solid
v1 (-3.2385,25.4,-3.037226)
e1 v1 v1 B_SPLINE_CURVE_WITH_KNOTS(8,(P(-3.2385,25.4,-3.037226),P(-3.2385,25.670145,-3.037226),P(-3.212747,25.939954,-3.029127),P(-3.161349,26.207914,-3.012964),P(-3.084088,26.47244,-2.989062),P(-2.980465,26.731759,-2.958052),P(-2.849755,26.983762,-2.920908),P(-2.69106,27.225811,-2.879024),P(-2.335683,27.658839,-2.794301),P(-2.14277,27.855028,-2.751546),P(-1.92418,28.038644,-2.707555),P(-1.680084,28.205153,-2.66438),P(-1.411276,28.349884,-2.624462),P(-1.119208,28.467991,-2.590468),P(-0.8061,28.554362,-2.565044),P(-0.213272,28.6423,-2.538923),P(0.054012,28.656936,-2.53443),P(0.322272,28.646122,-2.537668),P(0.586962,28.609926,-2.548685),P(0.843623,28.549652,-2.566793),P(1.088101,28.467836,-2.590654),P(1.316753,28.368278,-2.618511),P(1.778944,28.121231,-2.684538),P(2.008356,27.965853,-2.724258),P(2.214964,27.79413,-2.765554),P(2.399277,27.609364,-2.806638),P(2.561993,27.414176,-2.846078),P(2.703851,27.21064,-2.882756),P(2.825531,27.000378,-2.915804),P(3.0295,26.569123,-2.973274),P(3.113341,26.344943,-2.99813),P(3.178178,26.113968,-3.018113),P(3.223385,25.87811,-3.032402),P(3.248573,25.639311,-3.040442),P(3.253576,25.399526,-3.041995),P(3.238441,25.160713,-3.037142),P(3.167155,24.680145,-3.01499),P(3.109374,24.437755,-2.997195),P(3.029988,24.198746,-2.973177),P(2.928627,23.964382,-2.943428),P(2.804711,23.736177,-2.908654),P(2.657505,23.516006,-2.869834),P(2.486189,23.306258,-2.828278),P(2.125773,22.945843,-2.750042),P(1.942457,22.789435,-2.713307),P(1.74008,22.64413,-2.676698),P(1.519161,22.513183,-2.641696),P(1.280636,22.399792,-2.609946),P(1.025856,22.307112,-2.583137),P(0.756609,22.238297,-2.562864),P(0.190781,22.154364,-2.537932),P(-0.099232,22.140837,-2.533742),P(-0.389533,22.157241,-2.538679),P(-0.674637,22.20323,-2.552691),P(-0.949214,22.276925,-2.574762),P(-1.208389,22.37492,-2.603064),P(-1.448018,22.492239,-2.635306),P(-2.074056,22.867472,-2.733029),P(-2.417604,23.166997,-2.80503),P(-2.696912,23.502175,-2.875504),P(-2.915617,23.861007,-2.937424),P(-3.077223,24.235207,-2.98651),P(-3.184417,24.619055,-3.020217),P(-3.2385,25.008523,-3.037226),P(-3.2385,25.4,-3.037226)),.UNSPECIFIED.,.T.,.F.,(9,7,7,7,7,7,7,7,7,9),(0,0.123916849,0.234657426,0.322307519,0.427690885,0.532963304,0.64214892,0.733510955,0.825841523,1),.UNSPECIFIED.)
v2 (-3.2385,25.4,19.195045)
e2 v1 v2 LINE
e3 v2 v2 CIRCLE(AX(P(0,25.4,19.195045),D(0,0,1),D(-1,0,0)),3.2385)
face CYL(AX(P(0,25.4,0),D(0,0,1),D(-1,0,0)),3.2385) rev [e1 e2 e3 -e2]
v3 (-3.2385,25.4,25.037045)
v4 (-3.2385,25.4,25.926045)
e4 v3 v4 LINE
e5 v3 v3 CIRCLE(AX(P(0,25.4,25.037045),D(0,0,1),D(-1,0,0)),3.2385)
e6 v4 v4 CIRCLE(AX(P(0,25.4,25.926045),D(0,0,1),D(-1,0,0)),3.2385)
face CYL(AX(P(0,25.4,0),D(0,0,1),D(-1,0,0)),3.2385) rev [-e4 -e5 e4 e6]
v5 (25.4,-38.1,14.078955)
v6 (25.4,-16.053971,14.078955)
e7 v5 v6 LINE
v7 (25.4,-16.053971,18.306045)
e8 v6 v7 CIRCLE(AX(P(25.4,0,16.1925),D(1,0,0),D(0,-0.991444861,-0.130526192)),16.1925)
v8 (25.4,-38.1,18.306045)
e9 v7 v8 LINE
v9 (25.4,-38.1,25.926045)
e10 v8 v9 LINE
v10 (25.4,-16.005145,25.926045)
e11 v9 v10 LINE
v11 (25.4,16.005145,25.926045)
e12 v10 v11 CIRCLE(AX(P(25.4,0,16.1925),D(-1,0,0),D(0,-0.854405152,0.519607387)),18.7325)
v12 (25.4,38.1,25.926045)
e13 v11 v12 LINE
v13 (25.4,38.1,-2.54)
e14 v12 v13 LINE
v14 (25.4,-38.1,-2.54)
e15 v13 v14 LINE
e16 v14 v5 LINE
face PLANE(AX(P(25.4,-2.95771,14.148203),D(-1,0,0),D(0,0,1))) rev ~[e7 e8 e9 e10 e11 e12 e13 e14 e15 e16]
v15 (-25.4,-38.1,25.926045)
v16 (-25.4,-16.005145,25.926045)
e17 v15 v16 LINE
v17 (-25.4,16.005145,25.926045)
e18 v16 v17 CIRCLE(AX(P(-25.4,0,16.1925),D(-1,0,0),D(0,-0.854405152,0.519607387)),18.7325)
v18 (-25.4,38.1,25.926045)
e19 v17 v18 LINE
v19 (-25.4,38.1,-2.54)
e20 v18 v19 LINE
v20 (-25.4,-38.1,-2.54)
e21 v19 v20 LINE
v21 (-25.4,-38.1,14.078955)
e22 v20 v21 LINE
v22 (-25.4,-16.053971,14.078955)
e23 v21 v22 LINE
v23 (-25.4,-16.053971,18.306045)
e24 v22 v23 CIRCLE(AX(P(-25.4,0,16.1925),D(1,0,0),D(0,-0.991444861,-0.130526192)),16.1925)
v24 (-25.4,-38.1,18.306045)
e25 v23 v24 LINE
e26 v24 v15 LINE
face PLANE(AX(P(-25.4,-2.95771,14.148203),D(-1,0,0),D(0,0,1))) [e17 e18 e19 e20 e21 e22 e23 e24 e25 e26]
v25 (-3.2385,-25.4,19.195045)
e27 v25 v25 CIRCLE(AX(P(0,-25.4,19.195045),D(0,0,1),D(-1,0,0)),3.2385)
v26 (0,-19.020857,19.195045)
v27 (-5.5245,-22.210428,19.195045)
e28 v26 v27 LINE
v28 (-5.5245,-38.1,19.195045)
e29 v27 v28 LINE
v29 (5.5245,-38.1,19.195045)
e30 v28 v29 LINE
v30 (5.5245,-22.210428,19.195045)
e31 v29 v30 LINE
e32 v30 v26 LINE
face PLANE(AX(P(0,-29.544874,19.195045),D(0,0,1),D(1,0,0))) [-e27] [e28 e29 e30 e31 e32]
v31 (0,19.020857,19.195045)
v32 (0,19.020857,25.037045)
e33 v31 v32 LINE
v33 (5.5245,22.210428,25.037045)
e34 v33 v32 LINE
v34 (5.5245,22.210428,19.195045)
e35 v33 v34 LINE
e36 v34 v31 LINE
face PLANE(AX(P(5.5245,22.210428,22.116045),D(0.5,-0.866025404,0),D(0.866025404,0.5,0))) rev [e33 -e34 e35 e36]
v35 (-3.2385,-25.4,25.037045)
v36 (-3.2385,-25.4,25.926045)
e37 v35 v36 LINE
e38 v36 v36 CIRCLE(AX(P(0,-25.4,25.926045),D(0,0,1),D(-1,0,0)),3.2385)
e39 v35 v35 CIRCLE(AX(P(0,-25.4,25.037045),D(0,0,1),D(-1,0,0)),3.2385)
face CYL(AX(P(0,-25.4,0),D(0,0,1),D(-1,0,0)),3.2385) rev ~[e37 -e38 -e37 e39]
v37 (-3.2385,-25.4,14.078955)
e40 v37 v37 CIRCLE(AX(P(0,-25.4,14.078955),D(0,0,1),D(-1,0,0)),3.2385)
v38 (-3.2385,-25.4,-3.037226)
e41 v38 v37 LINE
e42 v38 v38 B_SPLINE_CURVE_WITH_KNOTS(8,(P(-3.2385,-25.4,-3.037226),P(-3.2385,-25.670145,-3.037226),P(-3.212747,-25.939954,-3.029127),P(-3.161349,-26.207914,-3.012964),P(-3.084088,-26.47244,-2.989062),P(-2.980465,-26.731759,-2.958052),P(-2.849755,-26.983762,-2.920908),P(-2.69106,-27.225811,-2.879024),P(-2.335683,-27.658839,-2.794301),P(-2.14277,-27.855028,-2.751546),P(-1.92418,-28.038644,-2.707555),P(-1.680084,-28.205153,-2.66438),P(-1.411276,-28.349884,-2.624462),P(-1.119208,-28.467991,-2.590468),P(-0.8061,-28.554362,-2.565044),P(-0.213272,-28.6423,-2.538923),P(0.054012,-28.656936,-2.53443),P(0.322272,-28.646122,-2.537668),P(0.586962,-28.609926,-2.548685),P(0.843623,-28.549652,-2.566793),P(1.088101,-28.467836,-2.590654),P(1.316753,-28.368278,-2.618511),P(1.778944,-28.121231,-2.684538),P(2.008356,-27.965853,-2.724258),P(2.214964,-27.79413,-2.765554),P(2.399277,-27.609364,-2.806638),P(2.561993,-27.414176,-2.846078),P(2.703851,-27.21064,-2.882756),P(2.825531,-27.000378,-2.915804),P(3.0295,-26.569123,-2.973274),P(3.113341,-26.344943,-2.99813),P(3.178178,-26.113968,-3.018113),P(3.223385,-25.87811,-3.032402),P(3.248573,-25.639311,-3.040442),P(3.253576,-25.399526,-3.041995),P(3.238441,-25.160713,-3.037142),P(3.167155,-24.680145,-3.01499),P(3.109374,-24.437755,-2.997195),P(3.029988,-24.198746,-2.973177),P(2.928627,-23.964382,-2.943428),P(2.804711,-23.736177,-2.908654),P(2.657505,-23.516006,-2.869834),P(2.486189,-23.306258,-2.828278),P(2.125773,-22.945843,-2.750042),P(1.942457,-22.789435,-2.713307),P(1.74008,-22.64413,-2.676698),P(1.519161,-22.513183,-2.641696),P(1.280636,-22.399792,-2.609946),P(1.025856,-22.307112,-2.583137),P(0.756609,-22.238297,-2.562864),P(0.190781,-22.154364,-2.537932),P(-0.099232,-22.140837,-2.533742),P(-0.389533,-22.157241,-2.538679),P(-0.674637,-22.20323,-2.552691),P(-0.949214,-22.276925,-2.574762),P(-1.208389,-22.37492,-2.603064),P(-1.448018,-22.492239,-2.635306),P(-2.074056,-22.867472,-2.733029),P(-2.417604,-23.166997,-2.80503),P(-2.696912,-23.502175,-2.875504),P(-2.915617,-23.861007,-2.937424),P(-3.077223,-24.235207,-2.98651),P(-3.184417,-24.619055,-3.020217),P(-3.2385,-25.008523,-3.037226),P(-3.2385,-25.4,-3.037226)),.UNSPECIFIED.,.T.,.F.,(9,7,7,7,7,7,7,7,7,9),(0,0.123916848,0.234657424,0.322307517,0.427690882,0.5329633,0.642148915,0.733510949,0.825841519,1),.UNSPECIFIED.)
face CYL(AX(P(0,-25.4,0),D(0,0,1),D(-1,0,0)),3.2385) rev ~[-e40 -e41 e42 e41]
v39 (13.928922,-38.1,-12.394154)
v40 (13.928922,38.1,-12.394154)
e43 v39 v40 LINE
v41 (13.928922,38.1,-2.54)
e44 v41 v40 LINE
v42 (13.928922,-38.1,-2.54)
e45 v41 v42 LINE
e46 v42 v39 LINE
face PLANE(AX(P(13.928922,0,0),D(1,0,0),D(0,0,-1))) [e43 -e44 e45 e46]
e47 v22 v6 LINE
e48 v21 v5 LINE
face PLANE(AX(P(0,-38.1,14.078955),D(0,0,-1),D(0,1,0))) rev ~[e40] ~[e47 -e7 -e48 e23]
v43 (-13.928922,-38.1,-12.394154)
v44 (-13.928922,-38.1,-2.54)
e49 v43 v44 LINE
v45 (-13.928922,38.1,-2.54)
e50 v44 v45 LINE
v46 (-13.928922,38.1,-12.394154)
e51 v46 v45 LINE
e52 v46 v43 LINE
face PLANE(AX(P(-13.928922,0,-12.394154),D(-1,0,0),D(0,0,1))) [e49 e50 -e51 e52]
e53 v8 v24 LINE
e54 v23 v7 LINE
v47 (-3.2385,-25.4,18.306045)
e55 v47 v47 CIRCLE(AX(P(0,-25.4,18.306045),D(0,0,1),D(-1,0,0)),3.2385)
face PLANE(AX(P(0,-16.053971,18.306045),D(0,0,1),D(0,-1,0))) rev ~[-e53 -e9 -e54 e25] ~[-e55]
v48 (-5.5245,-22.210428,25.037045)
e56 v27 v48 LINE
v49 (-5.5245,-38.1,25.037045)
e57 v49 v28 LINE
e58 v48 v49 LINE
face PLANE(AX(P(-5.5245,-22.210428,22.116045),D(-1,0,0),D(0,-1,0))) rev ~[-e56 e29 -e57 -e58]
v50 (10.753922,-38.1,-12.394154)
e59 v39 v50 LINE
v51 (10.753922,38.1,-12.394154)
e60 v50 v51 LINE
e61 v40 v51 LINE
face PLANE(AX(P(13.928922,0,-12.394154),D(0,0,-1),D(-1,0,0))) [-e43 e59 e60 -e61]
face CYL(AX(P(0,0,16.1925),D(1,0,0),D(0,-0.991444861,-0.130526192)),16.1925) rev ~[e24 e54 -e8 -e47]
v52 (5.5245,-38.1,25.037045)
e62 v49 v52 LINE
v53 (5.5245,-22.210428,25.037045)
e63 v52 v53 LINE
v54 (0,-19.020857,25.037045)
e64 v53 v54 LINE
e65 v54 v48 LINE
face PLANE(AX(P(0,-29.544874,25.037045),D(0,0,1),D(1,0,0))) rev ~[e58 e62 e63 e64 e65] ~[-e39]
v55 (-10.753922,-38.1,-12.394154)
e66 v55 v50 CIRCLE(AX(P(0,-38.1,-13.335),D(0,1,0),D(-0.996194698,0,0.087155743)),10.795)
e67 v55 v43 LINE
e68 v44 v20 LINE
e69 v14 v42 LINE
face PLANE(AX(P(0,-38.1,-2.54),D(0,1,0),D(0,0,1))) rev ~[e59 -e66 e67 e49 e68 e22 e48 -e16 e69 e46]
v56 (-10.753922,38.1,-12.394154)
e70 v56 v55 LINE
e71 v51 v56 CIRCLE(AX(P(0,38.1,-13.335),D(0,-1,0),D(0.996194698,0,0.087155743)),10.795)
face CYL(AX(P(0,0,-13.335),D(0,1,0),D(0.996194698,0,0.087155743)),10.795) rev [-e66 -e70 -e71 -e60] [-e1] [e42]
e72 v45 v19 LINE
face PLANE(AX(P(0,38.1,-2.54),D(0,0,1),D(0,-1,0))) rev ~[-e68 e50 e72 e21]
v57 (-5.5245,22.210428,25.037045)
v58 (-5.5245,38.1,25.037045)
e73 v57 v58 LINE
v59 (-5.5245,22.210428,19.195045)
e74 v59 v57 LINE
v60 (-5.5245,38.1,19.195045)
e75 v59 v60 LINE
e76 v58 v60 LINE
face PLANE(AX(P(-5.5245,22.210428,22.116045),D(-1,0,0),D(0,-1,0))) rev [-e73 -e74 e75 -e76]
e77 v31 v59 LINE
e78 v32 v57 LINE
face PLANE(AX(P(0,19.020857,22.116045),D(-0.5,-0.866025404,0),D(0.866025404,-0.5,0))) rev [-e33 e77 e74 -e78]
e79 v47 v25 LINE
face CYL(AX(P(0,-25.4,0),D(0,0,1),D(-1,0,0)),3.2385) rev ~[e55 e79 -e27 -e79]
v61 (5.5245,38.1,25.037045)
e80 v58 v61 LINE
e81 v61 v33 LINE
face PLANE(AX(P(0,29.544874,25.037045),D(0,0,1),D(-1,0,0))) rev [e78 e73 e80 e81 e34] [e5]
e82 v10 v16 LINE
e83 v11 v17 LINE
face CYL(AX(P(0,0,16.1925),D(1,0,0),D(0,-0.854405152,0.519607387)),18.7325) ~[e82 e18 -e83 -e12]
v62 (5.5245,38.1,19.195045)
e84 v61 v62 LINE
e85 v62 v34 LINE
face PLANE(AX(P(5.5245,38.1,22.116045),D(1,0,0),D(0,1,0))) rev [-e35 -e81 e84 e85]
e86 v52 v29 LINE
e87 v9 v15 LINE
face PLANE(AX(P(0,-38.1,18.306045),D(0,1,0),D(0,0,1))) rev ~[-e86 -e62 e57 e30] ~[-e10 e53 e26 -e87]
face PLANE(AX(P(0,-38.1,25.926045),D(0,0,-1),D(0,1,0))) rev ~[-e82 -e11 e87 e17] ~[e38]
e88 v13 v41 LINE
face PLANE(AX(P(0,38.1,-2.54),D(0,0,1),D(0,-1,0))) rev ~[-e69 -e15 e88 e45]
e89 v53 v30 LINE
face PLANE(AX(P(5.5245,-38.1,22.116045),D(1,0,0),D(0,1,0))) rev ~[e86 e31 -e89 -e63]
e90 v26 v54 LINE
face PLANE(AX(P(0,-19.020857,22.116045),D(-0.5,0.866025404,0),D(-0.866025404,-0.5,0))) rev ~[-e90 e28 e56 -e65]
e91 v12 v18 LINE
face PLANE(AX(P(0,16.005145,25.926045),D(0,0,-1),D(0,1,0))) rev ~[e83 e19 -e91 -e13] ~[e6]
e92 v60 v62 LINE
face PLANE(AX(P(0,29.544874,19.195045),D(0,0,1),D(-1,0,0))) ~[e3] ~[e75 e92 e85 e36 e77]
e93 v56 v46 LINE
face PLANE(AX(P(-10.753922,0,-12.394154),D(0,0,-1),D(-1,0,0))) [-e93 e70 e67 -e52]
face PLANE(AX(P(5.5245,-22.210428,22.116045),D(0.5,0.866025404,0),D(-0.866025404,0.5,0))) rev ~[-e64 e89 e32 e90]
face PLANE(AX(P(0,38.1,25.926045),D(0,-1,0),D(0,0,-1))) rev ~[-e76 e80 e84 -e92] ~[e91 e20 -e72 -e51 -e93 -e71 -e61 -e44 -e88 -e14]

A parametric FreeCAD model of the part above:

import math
import FreeCAD as App
import Part
import Sketcher

V = App.Vector
Q = App.Units.Quantity


def add_polygon(sketch, points):
    """Adds a closed chain of lines whose ends are joined by coincident constraints."""
    first, n = sketch.GeometryCount, len(points)
    for a, b in zip(points, points[1:] + points[:1]):
        sketch.addGeometry(Part.LineSegment(App.Vector(*a, 0), App.Vector(*b, 0)), False)
    for i in range(n):
        sketch.addConstraint(Sketcher.Constraint("Coincident", first + i, 2, first + (i + 1) % n, 1))

doc = App.newDocument("Part")
body = doc.addObject("PartDesign::Body", "Body")

# Sketch on XZ plane
sketch1 = doc.addObject("Sketcher::SketchObject", "Sketch")
body.addObject(sketch1)
sketch1.AttachmentSupport = (doc.XZ_Plane, [""])
sketch1.MapMode = "FlatFace"
sketch1.addGeometry([
    Part.LineSegment(V(-13.9, 0, 0), V(13.9, 0, 0)),  # 0
    Part.LineSegment(V(13.9, 0, 0), V(13.9, -12.4, 0)),  # 1
    Part.LineSegment(V(13.9, -12.4, 0), V(10.8, -12.4, 0)),  # 2
    Part.ArcOfCircle(Part.Circle(V(0, -13.3, 0), V(0, 0, 1), 10.8), math.radians(5), math.radians(175)),  # 3
    Part.LineSegment(V(-10.8, -12.4, 0), V(-13.9, -12.4, 0)),  # 4
    Part.LineSegment(V(-13.9, -12.4, 0), V(-13.9, 0, 0)),  # 5
], False)
sketch1.addConstraint([
    Sketcher.Constraint("Coincident", 0, 2, 1, 1),
    Sketcher.Constraint("Coincident", 1, 2, 2, 1),
    Sketcher.Constraint("Coincident", 2, 2, 3, 1),
    Sketcher.Constraint("Coincident", 3, 2, 4, 1),
    Sketcher.Constraint("Coincident", 4, 2, 5, 1),
    Sketcher.Constraint("Coincident", 5, 2, 0, 1),
    Sketcher.Constraint("Horizontal", 0),
    Sketcher.Constraint("Vertical", 1),
    Sketcher.Constraint("Horizontal", 2),
    Sketcher.Constraint("Horizontal", 4),
    Sketcher.Constraint("Vertical", 5),
    Sketcher.Constraint("Symmetric", 0, 2, 5, 2, -1, 1),
    Sketcher.Constraint("Symmetric", 2, 2, 3, 2, -2),
    Sketcher.Constraint("Radius", 3, Q("0.425 in")),
    Sketcher.Constraint("DistanceX", 2, 2, 2, 1, Q("0.125 in")),
    Sketcher.Constraint("DistanceY", 3, 3, -1, 1, Q("0.525 in")),
    Sketcher.Constraint("DistanceX", 0, 1, 0, 2, 27.857844),
])
pad1 = doc.addObject("PartDesign::Pad", "Pad")
body.addObject(pad1)
pad1.Profile = sketch1
pad1.Length = Q("3 in")
pad1.Midplane = True

# Sketch on YZ plane
sketch2 = doc.addObject("Sketcher::SketchObject", "Sketch001")
body.addObject(sketch2)
sketch2.AttachmentSupport = (doc.YZ_Plane, [""])
sketch2.MapMode = "FlatFace"
sketch2.addGeometry([
    Part.LineSegment(V(-38.1, 18.3, 0), V(-16.1, 18.3, 0)),  # 0
    Part.ArcOfCircle(Part.Circle(V(0, 16.2, 0), V(0, 0, 1), 16.2), math.radians(-172), math.radians(172)),  # 1
    Part.LineSegment(V(-16.1, 14.1, 0), V(-38.1, 14.1, 0)),  # 2
    Part.LineSegment(V(-38.1, 14.1, 0), V(-38.1, -2.5, 0)),  # 3
    Part.LineSegment(V(-38.1, -2.5, 0), V(38.1, -2.5, 0)),  # 4
    Part.LineSegment(V(38.1, -2.5, 0), V(38.1, 25.9, 0)),  # 5
    Part.LineSegment(V(38.1, 25.9, 0), V(16, 25.9, 0)),  # 6
    Part.ArcOfCircle(Part.Circle(V(0, 16.2, 0), V(0, 0, 1), 18.7), math.radians(31), math.radians(149)),  # 7
    Part.LineSegment(V(-16, 25.9, 0), V(-38.1, 25.9, 0)),  # 8
    Part.LineSegment(V(-38.1, 25.9, 0), V(-38.1, 18.3, 0)),  # 9
], False)
sketch2.addConstraint([
    Sketcher.Constraint("Coincident", 0, 2, 1, 2),
    Sketcher.Constraint("Coincident", 1, 1, 2, 1),
    Sketcher.Constraint("Coincident", 2, 2, 3, 1),
    Sketcher.Constraint("Coincident", 3, 2, 4, 1),
    Sketcher.Constraint("Coincident", 4, 2, 5, 1),
    Sketcher.Constraint("Coincident", 5, 2, 6, 1),
    Sketcher.Constraint("Coincident", 6, 2, 7, 1),
    Sketcher.Constraint("Coincident", 7, 2, 8, 1),
    Sketcher.Constraint("Coincident", 8, 2, 9, 1),
    Sketcher.Constraint("Coincident", 9, 2, 0, 1),
    Sketcher.Constraint("Horizontal", 0),
    Sketcher.Constraint("Horizontal", 2),
    Sketcher.Constraint("Vertical", 3),
    Sketcher.Constraint("Horizontal", 4),
    Sketcher.Constraint("Vertical", 5),
    Sketcher.Constraint("Horizontal", 6),
    Sketcher.Constraint("Horizontal", 8),
    Sketcher.Constraint("Vertical", 9),
    Sketcher.Constraint("Coincident", 7, 3, 1, 3),
    Sketcher.Constraint("Symmetric", 6, 2, 7, 2, -2),
    Sketcher.Constraint("Vertical", 0, 2, 1, 1),
    Sketcher.Constraint("Vertical", 3, 2, 8, 2),
    Sketcher.Constraint("Equal", 6, 8),
    Sketcher.Constraint("DistanceX", 4, 1, 4, 2, Q("3 in")),
    Sketcher.Constraint("DistanceY", 9, 2, 9, 1, Q("0.3 in")),
    Sketcher.Constraint("DistanceY", 3, 2, -1, 1, Q("0.1 in")),
    Sketcher.Constraint("Radius", 1, Q("0.6375 in")),
    Sketcher.Constraint("Radius", 7, Q("0.7375 in")),
    Sketcher.Constraint("DistanceY", -1, 1, 1, 3, Q("0.6375 in")),
    Sketcher.Constraint("DistanceX", 0, 1, 0, 2, 22.046029),
])
pad2 = doc.addObject("PartDesign::Pad", "Pad001")
body.addObject(pad2)
pad2.Profile = sketch2
pad2.Length = Q("2 in")
pad2.Midplane = True

# Sketch on XY plane
sketch3 = doc.addObject("Sketcher::SketchObject", "Sketch002")
body.addObject(sketch3)
sketch3.AttachmentSupport = (doc.XY_Plane, [""])
sketch3.MapMode = "FlatFace"
sketch3.AttachmentOffset = App.Placement(V(0, 0, 22.116045), App.Rotation())
add_polygon(sketch3, [(6, -22), (0, -19), (-6, -22), (-6, -38), (6, -38)])  # lines 0-4
sketch3.addConstraint([
    Sketcher.Constraint("Vertical", 2),
    Sketcher.Constraint("Horizontal", 3),
    Sketcher.Constraint("Vertical", 4),
    Sketcher.Constraint("Symmetric", 1, 2, 4, 2, -2),
    Sketcher.Constraint("PointOnObject", 0, 2, -2),
    Sketcher.Constraint("Angle", 0, Q("150 deg")),
    Sketcher.Constraint("DistanceY", 2, 2, -1, 1, Q("1.5 in")),
    Sketcher.Constraint("DistanceX", 3, 1, 3, 2, Q("0.435 in")),
    Sketcher.Constraint("DistanceY", 2, 2, 2, 1, 15.889572),
])
pocket1 = doc.addObject("PartDesign::Pocket", "Pocket")
body.addObject(pocket1)
pocket1.Profile = sketch3
pocket1.Length = Q("0.23 in")
pocket1.Midplane = True

# Sketch on XY plane
sketch4 = doc.addObject("Sketcher::SketchObject", "Sketch003")
body.addObject(sketch4)
sketch4.AttachmentSupport = (doc.XY_Plane, [""])
sketch4.MapMode = "FlatFace"
sketch4.addGeometry(Part.Circle(V(0, -25.4, 0), V(0, 0, 1), 3.2), False)
sketch4.addConstraint([
    Sketcher.Constraint("PointOnObject", 0, 3, -2),
    Sketcher.Constraint("Diameter", 0, Q("0.255 in")),
    Sketcher.Constraint("DistanceY", 0, 3, -1, 1, Q("1 in")),
])
pocket2 = doc.addObject("PartDesign::Pocket", "Pocket001")
body.addObject(pocket2)
pocket2.Profile = sketch4
pocket2.Length = 117.178568
pocket2.Midplane = True
doc.recompute()

mirrored = doc.addObject("PartDesign::Mirrored", "Mirrored")
body.addObject(mirrored)
mirrored.Originals = [pocket1, pocket2]
mirrored.MirrorPlane = (doc.XZ_Plane, [""])
body.Tip = mirrored

doc.recompute()
